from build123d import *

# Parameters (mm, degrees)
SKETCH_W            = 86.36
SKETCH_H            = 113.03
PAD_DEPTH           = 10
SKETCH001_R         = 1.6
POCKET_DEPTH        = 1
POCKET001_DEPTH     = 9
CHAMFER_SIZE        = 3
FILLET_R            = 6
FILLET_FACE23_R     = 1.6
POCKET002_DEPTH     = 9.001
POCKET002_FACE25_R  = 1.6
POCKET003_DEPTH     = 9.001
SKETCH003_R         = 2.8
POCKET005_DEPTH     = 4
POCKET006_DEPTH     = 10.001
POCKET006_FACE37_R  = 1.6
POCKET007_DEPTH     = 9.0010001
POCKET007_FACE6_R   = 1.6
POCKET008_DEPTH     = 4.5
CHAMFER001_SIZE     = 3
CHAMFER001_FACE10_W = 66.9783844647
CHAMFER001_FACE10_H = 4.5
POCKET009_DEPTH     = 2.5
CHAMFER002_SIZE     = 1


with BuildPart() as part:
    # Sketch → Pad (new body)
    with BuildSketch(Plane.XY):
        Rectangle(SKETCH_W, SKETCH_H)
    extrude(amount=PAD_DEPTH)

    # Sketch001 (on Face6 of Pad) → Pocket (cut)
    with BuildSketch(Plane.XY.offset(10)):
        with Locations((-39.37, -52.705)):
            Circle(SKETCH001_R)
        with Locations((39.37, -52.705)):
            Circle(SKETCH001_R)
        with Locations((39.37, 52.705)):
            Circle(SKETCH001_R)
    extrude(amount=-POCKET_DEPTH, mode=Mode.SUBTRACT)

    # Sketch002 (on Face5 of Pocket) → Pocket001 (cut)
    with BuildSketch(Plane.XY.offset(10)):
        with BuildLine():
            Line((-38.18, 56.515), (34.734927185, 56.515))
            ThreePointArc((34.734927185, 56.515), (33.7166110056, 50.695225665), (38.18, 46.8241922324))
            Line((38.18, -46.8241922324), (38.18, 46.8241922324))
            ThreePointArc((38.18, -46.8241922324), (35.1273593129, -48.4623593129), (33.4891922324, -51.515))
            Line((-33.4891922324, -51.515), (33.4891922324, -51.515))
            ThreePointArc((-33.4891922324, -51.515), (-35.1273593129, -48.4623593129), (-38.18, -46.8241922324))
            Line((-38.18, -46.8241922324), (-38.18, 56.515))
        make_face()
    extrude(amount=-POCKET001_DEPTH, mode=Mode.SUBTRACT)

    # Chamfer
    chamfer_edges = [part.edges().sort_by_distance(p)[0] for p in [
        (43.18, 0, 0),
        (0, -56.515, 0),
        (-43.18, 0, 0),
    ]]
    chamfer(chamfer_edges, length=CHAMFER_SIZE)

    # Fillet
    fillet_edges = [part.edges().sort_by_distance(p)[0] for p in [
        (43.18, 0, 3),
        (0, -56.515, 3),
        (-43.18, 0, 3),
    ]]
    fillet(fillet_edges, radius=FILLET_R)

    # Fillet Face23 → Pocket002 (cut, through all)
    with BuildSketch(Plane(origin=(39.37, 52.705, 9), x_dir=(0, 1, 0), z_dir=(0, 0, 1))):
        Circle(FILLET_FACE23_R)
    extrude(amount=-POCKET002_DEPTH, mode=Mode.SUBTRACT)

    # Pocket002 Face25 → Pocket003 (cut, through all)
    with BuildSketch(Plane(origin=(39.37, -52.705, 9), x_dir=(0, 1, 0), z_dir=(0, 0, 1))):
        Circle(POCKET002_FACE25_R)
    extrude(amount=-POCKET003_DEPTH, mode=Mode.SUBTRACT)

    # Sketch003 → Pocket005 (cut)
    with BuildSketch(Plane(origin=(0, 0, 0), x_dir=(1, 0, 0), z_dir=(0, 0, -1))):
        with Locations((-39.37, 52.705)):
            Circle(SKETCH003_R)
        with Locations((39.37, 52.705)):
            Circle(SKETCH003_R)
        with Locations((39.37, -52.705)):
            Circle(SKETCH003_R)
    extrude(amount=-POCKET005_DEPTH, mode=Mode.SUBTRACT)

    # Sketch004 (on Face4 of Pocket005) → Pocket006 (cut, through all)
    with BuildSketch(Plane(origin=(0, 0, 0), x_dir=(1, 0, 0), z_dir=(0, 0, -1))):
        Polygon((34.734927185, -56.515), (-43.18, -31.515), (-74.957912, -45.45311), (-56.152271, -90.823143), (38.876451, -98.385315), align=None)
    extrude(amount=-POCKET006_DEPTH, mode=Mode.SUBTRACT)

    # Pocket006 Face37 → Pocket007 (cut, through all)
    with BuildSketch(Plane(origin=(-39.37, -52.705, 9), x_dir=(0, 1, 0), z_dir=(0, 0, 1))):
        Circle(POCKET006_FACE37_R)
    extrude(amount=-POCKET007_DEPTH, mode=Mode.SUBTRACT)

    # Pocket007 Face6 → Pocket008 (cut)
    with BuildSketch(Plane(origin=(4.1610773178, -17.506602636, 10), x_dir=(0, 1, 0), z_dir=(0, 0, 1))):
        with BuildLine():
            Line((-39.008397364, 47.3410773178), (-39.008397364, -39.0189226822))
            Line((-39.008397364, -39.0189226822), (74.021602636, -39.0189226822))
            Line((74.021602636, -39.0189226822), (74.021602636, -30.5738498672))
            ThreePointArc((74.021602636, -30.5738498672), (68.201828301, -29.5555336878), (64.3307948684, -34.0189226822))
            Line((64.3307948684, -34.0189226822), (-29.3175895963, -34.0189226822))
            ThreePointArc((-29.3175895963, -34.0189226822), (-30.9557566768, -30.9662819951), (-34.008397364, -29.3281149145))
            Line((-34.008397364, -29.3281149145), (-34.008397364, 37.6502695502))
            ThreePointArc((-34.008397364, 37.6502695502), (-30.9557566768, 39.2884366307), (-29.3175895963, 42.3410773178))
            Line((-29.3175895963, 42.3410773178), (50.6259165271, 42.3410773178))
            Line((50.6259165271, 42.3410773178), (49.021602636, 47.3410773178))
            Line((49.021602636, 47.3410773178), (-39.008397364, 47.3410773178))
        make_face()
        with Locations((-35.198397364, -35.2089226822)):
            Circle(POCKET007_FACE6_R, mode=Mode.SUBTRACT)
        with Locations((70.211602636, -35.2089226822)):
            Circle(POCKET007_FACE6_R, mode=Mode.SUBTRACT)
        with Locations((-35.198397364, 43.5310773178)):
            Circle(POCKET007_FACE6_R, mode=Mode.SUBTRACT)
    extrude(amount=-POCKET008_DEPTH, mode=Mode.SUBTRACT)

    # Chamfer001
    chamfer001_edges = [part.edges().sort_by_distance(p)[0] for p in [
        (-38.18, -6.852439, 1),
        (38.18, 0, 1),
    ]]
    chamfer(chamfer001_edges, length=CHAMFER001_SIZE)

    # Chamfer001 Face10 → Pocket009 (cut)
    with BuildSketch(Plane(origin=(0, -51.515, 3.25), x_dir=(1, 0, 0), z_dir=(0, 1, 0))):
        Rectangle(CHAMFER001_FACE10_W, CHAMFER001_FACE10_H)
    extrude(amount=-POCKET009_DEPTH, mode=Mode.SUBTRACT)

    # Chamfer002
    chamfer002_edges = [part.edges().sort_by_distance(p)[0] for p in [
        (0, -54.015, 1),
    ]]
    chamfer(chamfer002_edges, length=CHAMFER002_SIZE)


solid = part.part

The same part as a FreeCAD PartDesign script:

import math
import FreeCAD as App
import Part
import Sketcher

V = App.Vector
Q = App.Units.Quantity


def edges_at(feature, points):
    """Names of the edges that pass closest to the given points."""
    edges = feature.Shape.Edges
    near = lambda p: min(range(len(edges)), key=lambda i: edges[i].distToShape(Part.Vertex(*p))[0])
    return sorted({f"Edge{near(p) + 1}" for p in points})

doc = App.newDocument("Part")
params = doc.addObject("Spreadsheet::Sheet", "Params")
for row, (alias, value) in enumerate([
    ("sketch1_width", "86.36 mm"),
    ("sketch1_height", "113.03 mm"),
    ("pad1_length", "10 mm"),
    ("sketch2_diameter", "3.2 mm"),
    ("pocket1_length", "1 mm"),
    ("sketch3_radius", "6 mm"),
    ("sketch3_height", "1.19 mm"),
    ("pocket2_length", "9 mm"),
    ("chamfer_size", "3 mm"),
    ("fillet_radius", "6 mm"),
    ("sketch4_diameter", "3.2 mm"),
    ("sketch5_diameter", "3.2 mm"),
    ("sketch6_diameter", "5.6 mm"),
    ("pocket5_length", "4 mm"),
    ("sketch8_diameter", "3.2 mm"),
    ("sketch9_radius", "6 mm"),
    ("sketch9_diameter", "3.2 mm"),
    ("sketch9_width", "86.36 mm"),
    ("sketch9_height", "113.03 mm"),
    ("pocket8_length", "4.5 mm"),
    ("chamfer2_size", "3 mm"),
    ("sketch10_height", "4.5 mm"),
    ("pocket9_length", "2.5 mm"),
    ("chamfer3_size", "1 mm"),
], start=1):
    params.set(f"A{row}", alias)
    params.set(f"B{row}", "=" + value)
    params.setAlias(f"B{row}", alias)

body = doc.addObject("PartDesign::Body", "Body")

# Sketch on XY plane
sketch1 = body.newObject("Sketcher::SketchObject", "Sketch")
sketch1.AttachmentSupport = (doc.getObject("XY_Plane"), [""])
sketch1.MapMode = "FlatFace"
sketch1.addGeometry([
    Part.LineSegment(V(-43.18, 56.515, 0), V(-43.18, -56.515, 0)),
    Part.LineSegment(V(-43.18, -56.515, 0), V(43.18, -56.515, 0)),
    Part.LineSegment(V(43.18, -56.515, 0), V(43.18, 56.515, 0)),
    Part.LineSegment(V(43.18, 56.515, 0), V(-43.18, 56.515, 0)),
], False)
sketch1.addConstraint([
    Sketcher.Constraint("Coincident", 0, 2, 1, 1),
    Sketcher.Constraint("Coincident", 1, 2, 2, 1),
    Sketcher.Constraint("Coincident", 2, 2, 3, 1),
    Sketcher.Constraint("Coincident", 3, 2, 0, 1),
    Sketcher.Constraint("Vertical", 0),
    Sketcher.Constraint("Horizontal", 1),
    Sketcher.Constraint("Vertical", 2),
    Sketcher.Constraint("Horizontal", 3),
    Sketcher.Constraint("Symmetric", 0, 2, 2, 2, -1, 1),
    Sketcher.Constraint("DistanceX", 1, 1, 1, 2, Q("86.36 mm")),
    Sketcher.Constraint("DistanceY", 0, 2, 0, 1, Q("113.03 mm")),
])
sketch1.setExpression("Constraints[9]", "Params.sketch1_width")
sketch1.setExpression("Constraints[10]", "Params.sketch1_height")
pad1 = body.newObject("PartDesign::Pad", "Pad")
pad1.Profile = sketch1
pad1.setExpression("Length", "Params.pad1_length")

# Sketch on XY plane
sketch2 = body.newObject("Sketcher::SketchObject", "Sketch001")
sketch2.AttachmentSupport = (doc.getObject("XY_Plane"), [""])
sketch2.MapMode = "FlatFace"
sketch2.AttachmentOffset = App.Placement(V(0, 0, 10), App.Rotation())
sketch2.addGeometry([
    Part.Circle(V(-39.37, -52.705, 0), V(0, 0, 1), 1.6),
    Part.Circle(V(39.37, -52.705, 0), V(0, 0, 1), 1.6),
    Part.Circle(V(39.37, 52.705, 0), V(0, 0, 1), 1.6),
], False)
sketch2.addConstraint([
    Sketcher.Constraint("Equal", 0, 1),
    Sketcher.Constraint("Equal", 1, 2),
    Sketcher.Constraint("Symmetric", 0, 3, 2, 3, -1, 1),
    Sketcher.Constraint("Symmetric", 0, 3, 1, 3, -2),
    Sketcher.Constraint("Diameter", 0, Q("3.2 mm")),
    Sketcher.Constraint("DistanceX", 0, 3, -1, 1, Q("39.37 mm")),
    Sketcher.Constraint("DistanceY", 1, 3, 2, 3, Q("105.41 mm")),
])
sketch2.setExpression("Constraints[4]", "Params.sketch2_diameter")
pocket1 = body.newObject("PartDesign::Pocket", "Pocket")
pocket1.Profile = sketch2
pocket1.setExpression("Length", "Params.pocket1_length")

# Sketch on XY plane
sketch3 = body.newObject("Sketcher::SketchObject", "Sketch002")
sketch3.AttachmentSupport = (doc.getObject("XY_Plane"), [""])
sketch3.MapMode = "FlatFace"
sketch3.AttachmentOffset = App.Placement(V(0, 0, 10), App.Rotation())
sketch3.addGeometry([
    Part.LineSegment(V(34.734927, 56.515, 0), V(-38.18, 56.515, 0)),  # 0
    Part.LineSegment(V(-38.18, 56.515, 0), V(-38.18, -46.824192, 0)),  # 1
    Part.ArcOfCircle(Part.Circle(V(-39.37, -52.705, 0), V(0, 0, 1), 6), math.radians(11.439514), math.radians(78.560486)),  # 2
    Part.LineSegment(V(-33.489192, -51.515, 0), V(33.489192, -51.515, 0)),  # 3
    Part.ArcOfCircle(Part.Circle(V(39.37, -52.705, 0), V(0, 0, 1), 6), math.radians(101.439514), math.radians(168.560486)),  # 4
    Part.LineSegment(V(38.18, -46.824192, 0), V(38.18, 46.824192, 0)),  # 5
    Part.ArcOfCircle(Part.Circle(V(39.37, 52.705, 0), V(0, 0, 1), 6), math.radians(140.580016), math.radians(258.560486)),  # 6
], False)
sketch3.addConstraint([
    Sketcher.Constraint("Coincident", 0, 2, 1, 1),
    Sketcher.Constraint("Coincident", 1, 2, 2, 2),
    Sketcher.Constraint("Coincident", 2, 1, 3, 1),
    Sketcher.Constraint("Coincident", 3, 2, 4, 2),
    Sketcher.Constraint("Coincident", 4, 1, 5, 1),
    Sketcher.Constraint("Coincident", 5, 2, 6, 2),
    Sketcher.Constraint("Coincident", 6, 1, 0, 1),
    Sketcher.Constraint("Horizontal", 0),
    Sketcher.Constraint("Vertical", 1),
    Sketcher.Constraint("Horizontal", 3),
    Sketcher.Constraint("Vertical", 5),
    Sketcher.Constraint("Equal", 2, 4),
    Sketcher.Constraint("Equal", 4, 6),
    Sketcher.Constraint("Symmetric", 2, 3, 6, 3, -1, 1),
    Sketcher.Constraint("Symmetric", 2, 3, 4, 3, -2),
    Sketcher.Constraint("Horizontal", 1, 2, 4, 1),
    Sketcher.Constraint("Radius", 2, Q("6 mm")),
    Sketcher.Constraint("DistanceX", 2, 3, -1, 1, Q("39.37 mm")),
    Sketcher.Constraint("DistanceX", 0, 2, -1, 1, Q("38.18 mm")),
    Sketcher.Constraint("DistanceY", 4, 3, 6, 3, Q("105.41 mm")),
    Sketcher.Constraint("DistanceY", 6, 3, 0, 2, Q("3.81 mm")),
    Sketcher.Constraint("DistanceY", 2, 3, 2, 1, Q("1.19 mm")),
])
sketch3.setExpression("Constraints[16]", "Params.sketch3_radius")
sketch3.setExpression("Constraints[21]", "Params.sketch3_height")
pocket2 = body.newObject("PartDesign::Pocket", "Pocket001")
pocket2.Profile = sketch3
pocket2.setExpression("Length", "Params.pocket2_length")
doc.recompute()

chamfer = body.newObject("PartDesign::Chamfer", "Chamfer")
chamfer.Base = (pocket2, edges_at(pocket2, [(43.18, 0, 0), (0, -56.515, 0), (-43.18, 0, 0)]))
chamfer.setExpression("Size", "Params.chamfer_size")
doc.recompute()

fillet = body.newObject("PartDesign::Fillet", "Fillet")
fillet.Base = (chamfer, edges_at(chamfer, [(43.18, 0, 3), (0, -56.515, 3), (-43.18, 0, 3)]))
fillet.setExpression("Radius", "Params.fillet_radius")

# Sketch on XY plane
sketch4 = body.newObject("Sketcher::SketchObject", "Sketch003")
sketch4.AttachmentSupport = (doc.getObject("XY_Plane"), [""])
sketch4.MapMode = "FlatFace"
sketch4.AttachmentOffset = App.Placement(V(0, 0, 9), App.Rotation())
sketch4.addGeometry(Part.Circle(V(39.37, 52.705, 0), V(0, 0, 1), 1.6), False)
sketch4.addConstraint([
    Sketcher.Constraint("Diameter", 0, Q("3.2 mm")),
    Sketcher.Constraint("DistanceX", -1, 1, 0, 3, Q("39.37 mm")),
    Sketcher.Constraint("DistanceY", -1, 1, 0, 3, Q("52.705 mm")),
])
sketch4.setExpression("Constraints[0]", "Params.sketch4_diameter")
pocket3 = body.newObject("PartDesign::Pocket", "Pocket002")
pocket3.Profile = sketch4
pocket3.Type = "ThroughAll"

# Sketch on XY plane
sketch5 = body.newObject("Sketcher::SketchObject", "Sketch004")
sketch5.AttachmentSupport = (doc.getObject("XY_Plane"), [""])
sketch5.MapMode = "FlatFace"
sketch5.AttachmentOffset = App.Placement(V(0, 0, 9), App.Rotation())
sketch5.addGeometry(Part.Circle(V(39.37, -52.705, 0), V(0, 0, 1), 1.6), False)
sketch5.addConstraint([
    Sketcher.Constraint("Diameter", 0, Q("3.2 mm")),
    Sketcher.Constraint("DistanceX", -1, 1, 0, 3, Q("39.37 mm")),
    Sketcher.Constraint("DistanceY", 0, 3, -1, 1, Q("52.705 mm")),
])
sketch5.setExpression("Constraints[0]", "Params.sketch5_diameter")
pocket4 = body.newObject("PartDesign::Pocket", "Pocket003")
pocket4.Profile = sketch5
pocket4.Type = "ThroughAll"

# Sketch on XY plane
sketch6 = body.newObject("Sketcher::SketchObject", "Sketch005")
sketch6.AttachmentSupport = (doc.getObject("XY_Plane"), [""])
sketch6.MapMode = "FlatFace"
sketch6.addGeometry([
    Part.Circle(V(-39.37, -52.705, 0), V(0, 0, 1), 2.8),
    Part.Circle(V(39.37, -52.705, 0), V(0, 0, 1), 2.8),
    Part.Circle(V(39.37, 52.705, 0), V(0, 0, 1), 2.8),
], False)
sketch6.addConstraint([
    Sketcher.Constraint("Equal", 0, 1),
    Sketcher.Constraint("Equal", 1, 2),
    Sketcher.Constraint("Symmetric", 0, 3, 2, 3, -1, 1),
    Sketcher.Constraint("Symmetric", 0, 3, 1, 3, -2),
    Sketcher.Constraint("Diameter", 0, Q("5.6 mm")),
    Sketcher.Constraint("DistanceX", 0, 3, -1, 1, Q("39.37 mm")),
    Sketcher.Constraint("DistanceY", 1, 3, 2, 3, Q("105.41 mm")),
])
sketch6.setExpression("Constraints[4]", "Params.sketch6_diameter")
pocket5 = body.newObject("PartDesign::Pocket", "Pocket004")
pocket5.Profile = sketch6
pocket5.setExpression("Length", "Params.pocket5_length")
pocket5.Reversed = True

# Sketch on XY plane
sketch7 = body.newObject("Sketcher::SketchObject", "Sketch006")
sketch7.AttachmentSupport = (doc.getObject("XY_Plane"), [""])
sketch7.MapMode = "FlatFace"
sketch7.addGeometry([
    Part.LineSegment(V(34.734927, 56.515, 0), V(-43.18, 31.515, 0)),  # 0
    Part.LineSegment(V(-43.18, 31.515, 0), V(-74.957912, 45.45311, 0)),  # 1
    Part.LineSegment(V(-74.957912, 45.45311, 0), V(-56.152271, 90.823143, 0)),  # 2
    Part.LineSegment(V(-56.152271, 90.823143, 0), V(38.876451, 98.385315, 0)),  # 3
    Part.LineSegment(V(38.876451, 98.385315, 0), V(34.734927, 56.515, 0)),  # 4
], False)
sketch7.addConstraint([
    Sketcher.Constraint("Coincident", 0, 2, 1, 1),
    Sketcher.Constraint("Coincident", 1, 2, 2, 1),
    Sketcher.Constraint("Coincident", 2, 2, 3, 1),
    Sketcher.Constraint("Coincident", 3, 2, 4, 1),
    Sketcher.Constraint("Coincident", 4, 2, 0, 1),
    Sketcher.Constraint("DistanceY", 0, 2, 4, 2, Q("25 mm")),
    Sketcher.Constraint("DistanceX", 0, 2, -1, 1, Q("43.18 mm")),
    Sketcher.Constraint("DistanceY", -1, 1, 0, 2, Q("31.515 mm")),
    Sketcher.Constraint("DistanceX", 2, 2, 4, 2, Q("90.887198 mm")),
    Sketcher.Constraint("Distance", 1, Q("34.700239 mm")),
    Sketcher.Constraint("Distance", 4, Q("42.074642 mm")),
    Sketcher.Constraint("DistanceX", 1, 2, -1, 1, Q("74.957912 mm")),
    Sketcher.Constraint("DistanceX", 2, 2, -1, 1, Q("56.152271 mm")),
    Sketcher.Constraint("DistanceX", -1, 1, 3, 2, Q("38.876451 mm")),
    Sketcher.Constraint("Distance", 2, Q("49.113054 mm")),
])
pocket6 = body.newObject("PartDesign::Pocket", "Pocket005")
pocket6.Profile = sketch7
pocket6.Type = "ThroughAll"
pocket6.Reversed = True

# Sketch on XY plane
sketch8 = body.newObject("Sketcher::SketchObject", "Sketch007")
sketch8.AttachmentSupport = (doc.getObject("XY_Plane"), [""])
sketch8.MapMode = "FlatFace"
sketch8.AttachmentOffset = App.Placement(V(0, 0, 9), App.Rotation())
sketch8.addGeometry(Part.Circle(V(-39.37, -52.705, 0), V(0, 0, 1), 1.6), False)
sketch8.addConstraint([
    Sketcher.Constraint("Diameter", 0, Q("3.2 mm")),
    Sketcher.Constraint("DistanceX", 0, 3, -1, 1, Q("39.37 mm")),
    Sketcher.Constraint("DistanceY", 0, 3, -1, 1, Q("52.705 mm")),
])
sketch8.setExpression("Constraints[0]", "Params.sketch8_diameter")
pocket7 = body.newObject("PartDesign::Pocket", "Pocket006")
pocket7.Profile = sketch8
pocket7.Type = "ThroughAll"

# Sketch on XY plane
sketch9 = body.newObject("Sketcher::SketchObject", "Sketch008")
sketch9.AttachmentSupport = (doc.getObject("XY_Plane"), [""])
sketch9.MapMode = "FlatFace"
sketch9.AttachmentOffset = App.Placement(V(0, 0, 10), App.Rotation())
sketch9.addGeometry([
    Part.LineSegment(V(-43.18, -56.515, 0), V(43.18, -56.515, 0)),  # 0
    Part.LineSegment(V(43.18, -56.515, 0), V(43.18, 56.515, 0)),  # 1
    Part.LineSegment(V(43.18, 56.515, 0), V(34.734927, 56.515, 0)),  # 2
    Part.ArcOfCircle(Part.Circle(V(39.37, 52.705, 0), V(0, 0, 1), 6), math.radians(140.580016), math.radians(258.560486)),  # 3
    Part.LineSegment(V(38.18, 46.824192, 0), V(38.18, -46.824192, 0)),  # 4
    Part.ArcOfCircle(Part.Circle(V(39.37, -52.705, 0), V(0, 0, 1), 6), math.radians(101.439514), math.radians(168.560486)),  # 5
    Part.LineSegment(V(33.489192, -51.515, 0), V(-33.489192, -51.515, 0)),  # 6
    Part.ArcOfCircle(Part.Circle(V(-39.37, -52.705, 0), V(0, 0, 1), 6), math.radians(11.439514), math.radians(78.560486)),  # 7
    Part.LineSegment(V(-38.18, -46.824192, 0), V(-38.18, 33.119314, 0)),  # 8
    Part.LineSegment(V(-38.18, 33.119314, 0), V(-43.18, 31.515, 0)),  # 9
    Part.LineSegment(V(-43.18, 31.515, 0), V(-43.18, -56.515, 0)),  # 10
    Part.Circle(V(39.37, -52.705, 0), V(0, 0, 1), 1.6),  # 11
    Part.Circle(V(39.37, 52.705, 0), V(0, 0, 1), 1.6),  # 12
    Part.Circle(V(-39.37, -52.705, 0), V(0, 0, 1), 1.6),  # 13
], False)
sketch9.addConstraint([
    Sketcher.Constraint("Coincident", 0, 2, 1, 1),
    Sketcher.Constraint("Coincident", 1, 2, 2, 1),
    Sketcher.Constraint("Coincident", 2, 2, 3, 1),
    Sketcher.Constraint("Coincident", 3, 2, 4, 1),
    Sketcher.Constraint("Coincident", 4, 2, 5, 1),
    Sketcher.Constraint("Coincident", 5, 2, 6, 1),
    Sketcher.Constraint("Coincident", 6, 2, 7, 1),
    Sketcher.Constraint("Coincident", 7, 2, 8, 1),
    Sketcher.Constraint("Coincident", 8, 2, 9, 1),
    Sketcher.Constraint("Coincident", 9, 2, 10, 1),
    Sketcher.Constraint("Coincident", 10, 2, 0, 1),
    Sketcher.Constraint("Horizontal", 0),
    Sketcher.Constraint("Vertical", 1),
    Sketcher.Constraint("Horizontal", 2),
    Sketcher.Constraint("Vertical", 4),
    Sketcher.Constraint("Horizontal", 6),
    Sketcher.Constraint("Vertical", 8),
    Sketcher.Constraint("Vertical", 10),
    Sketcher.Constraint("Coincident", 11, 3, 5, 3),
    Sketcher.Constraint("Coincident", 12, 3, 3, 3),
    Sketcher.Constraint("Coincident", 13, 3, 7, 3),
    Sketcher.Constraint("Equal", 3, 5),
    Sketcher.Constraint("Equal", 5, 7),
    Sketcher.Constraint("Equal", 11, 12),
    Sketcher.Constraint("Equal", 12, 13),
    Sketcher.Constraint("Symmetric", 3, 3, 7, 3, -1, 1),
    Sketcher.Constraint("Symmetric", 1, 2, 10, 2, -1, 1),
    Sketcher.Constraint("Symmetric", 5, 3, 7, 3, -2),
    Sketcher.Constraint("Horizontal", 4, 2, 7, 2),
    Sketcher.Constraint("Radius", 3, Q("6 mm")),
    Sketcher.Constraint("Diameter", 11, Q("3.2 mm")),
    Sketcher.Constraint("DistanceX", 3, 2, 1, 2, Q("5 mm")),
    Sketcher.Constraint("DistanceY", 0, 2, 5, 2, Q("5 mm")),
    Sketcher.Constraint("DistanceY", 9, 2, 2, 2, Q("25 mm")),
    Sketcher.Constraint("DistanceX", 0, 1, 0, 2, Q("86.36 mm")),
    Sketcher.Constraint("DistanceY", 1, 1, 1, 2, Q("113.03 mm")),
    Sketcher.Constraint("DistanceX", -1, 1, 3, 3, Q("39.37 mm")),
    Sketcher.Constraint("DistanceY", 5, 3, 3, 3, Q("105.41 mm")),
    Sketcher.Constraint("Distance", 9, Q("5.251078 mm")),
])
sketch9.setExpression("Constraints[29]", "Params.sketch9_radius")
sketch9.setExpression("Constraints[30]", "Params.sketch9_diameter")
sketch9.setExpression("Constraints[34]", "Params.sketch9_width")
sketch9.setExpression("Constraints[35]", "Params.sketch9_height")
pocket8 = body.newObject("PartDesign::Pocket", "Pocket007")
pocket8.Profile = sketch9
pocket8.setExpression("Length", "Params.pocket8_length")
doc.recompute()

chamfer2 = body.newObject("PartDesign::Chamfer", "Chamfer001")
chamfer2.Base = (pocket8, edges_at(pocket8, [(-38.18, -6.852, 1), (38.18, 0, 1)]))
chamfer2.setExpression("Size", "Params.chamfer2_size")

# Sketch on XZ plane
sketch10 = body.newObject("Sketcher::SketchObject", "Sketch009")
sketch10.AttachmentSupport = (doc.getObject("XZ_Plane"), [""])
sketch10.MapMode = "FlatFace"
sketch10.AttachmentOffset = App.Placement(V(0, 0, 51.515), App.Rotation())
sketch10.addGeometry([
    Part.LineSegment(V(-33.489192, 1, 0), V(-33.489192, 5.5, 0)),
    Part.LineSegment(V(-33.489192, 5.5, 0), V(33.489192, 5.5, 0)),
    Part.LineSegment(V(33.489192, 5.5, 0), V(33.489192, 1, 0)),
    Part.LineSegment(V(33.489192, 1, 0), V(-33.489192, 1, 0)),
], False)
sketch10.addConstraint([
    Sketcher.Constraint("Coincident", 0, 2, 1, 1),
    Sketcher.Constraint("Coincident", 1, 2, 2, 1),
    Sketcher.Constraint("Coincident", 2, 2, 3, 1),
    Sketcher.Constraint("Coincident", 3, 2, 0, 1),
    Sketcher.Constraint("Vertical", 0),
    Sketcher.Constraint("Horizontal", 1),
    Sketcher.Constraint("Vertical", 2),
    Sketcher.Constraint("Horizontal", 3),
    Sketcher.Constraint("DistanceY", 0, 1, 0, 2, Q("4.5 mm")),
    Sketcher.Constraint("DistanceY", -1, 1, 2, 2, Q("1 mm")),
    Sketcher.Constraint("DistanceX", 1, 1, 1, 2, Q("66.978384 mm")),
    Sketcher.Constraint("DistanceX", 0, 2, -1, 1, Q("33.489192 mm")),
])
sketch10.setExpression("Constraints[8]", "Params.sketch10_height")
pocket9 = body.newObject("PartDesign::Pocket", "Pocket008")
pocket9.Profile = sketch10
pocket9.setExpression("Length", "Params.pocket9_length")
pocket9.Reversed = True
doc.recompute()

chamfer3 = body.newObject("PartDesign::Chamfer", "Chamfer002")
chamfer3.Base = (pocket9, edges_at(pocket9, [(0, -54.015, 1)]))
chamfer3.setExpression("Size", "Params.chamfer3_size")

doc.recompute()
